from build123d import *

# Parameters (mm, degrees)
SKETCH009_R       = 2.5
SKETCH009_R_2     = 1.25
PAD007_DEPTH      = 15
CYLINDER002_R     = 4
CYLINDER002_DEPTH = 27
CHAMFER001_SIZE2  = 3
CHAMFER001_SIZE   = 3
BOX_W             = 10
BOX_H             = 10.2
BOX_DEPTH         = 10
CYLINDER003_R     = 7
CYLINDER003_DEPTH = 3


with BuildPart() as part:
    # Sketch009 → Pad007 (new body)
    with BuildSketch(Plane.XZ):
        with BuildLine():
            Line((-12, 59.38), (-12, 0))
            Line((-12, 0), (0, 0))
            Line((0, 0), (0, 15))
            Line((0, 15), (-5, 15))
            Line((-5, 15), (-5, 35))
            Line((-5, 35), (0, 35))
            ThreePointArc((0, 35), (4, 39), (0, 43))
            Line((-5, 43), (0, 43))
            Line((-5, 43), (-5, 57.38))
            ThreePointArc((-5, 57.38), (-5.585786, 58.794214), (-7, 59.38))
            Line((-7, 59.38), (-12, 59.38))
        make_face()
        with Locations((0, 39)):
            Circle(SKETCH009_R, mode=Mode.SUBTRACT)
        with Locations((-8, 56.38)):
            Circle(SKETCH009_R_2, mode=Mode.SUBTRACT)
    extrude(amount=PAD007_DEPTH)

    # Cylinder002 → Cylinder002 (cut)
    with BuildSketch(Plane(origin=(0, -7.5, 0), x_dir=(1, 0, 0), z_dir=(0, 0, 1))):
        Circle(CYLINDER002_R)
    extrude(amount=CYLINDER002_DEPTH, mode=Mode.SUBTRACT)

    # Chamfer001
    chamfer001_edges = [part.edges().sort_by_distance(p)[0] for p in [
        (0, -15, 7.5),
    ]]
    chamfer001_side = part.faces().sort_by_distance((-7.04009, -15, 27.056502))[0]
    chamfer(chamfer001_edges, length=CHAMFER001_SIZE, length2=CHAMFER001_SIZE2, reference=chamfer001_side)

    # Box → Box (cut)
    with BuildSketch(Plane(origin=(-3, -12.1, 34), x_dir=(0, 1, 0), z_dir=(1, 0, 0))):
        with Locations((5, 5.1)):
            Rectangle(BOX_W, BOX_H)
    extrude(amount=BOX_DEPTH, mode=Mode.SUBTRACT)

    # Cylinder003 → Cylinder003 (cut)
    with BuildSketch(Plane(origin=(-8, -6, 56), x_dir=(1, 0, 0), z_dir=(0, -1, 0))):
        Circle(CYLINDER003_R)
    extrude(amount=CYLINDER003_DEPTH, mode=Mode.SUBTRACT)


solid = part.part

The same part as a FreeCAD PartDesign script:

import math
import FreeCAD as App
import Part
import Sketcher
from FreeCAD import Vector


def edges_at(feature, points):
    """Names of the edges that pass closest to the given points."""
    edges = feature.Shape.Edges
    near = lambda p: min(range(len(edges)), key=lambda i: edges[i].distToShape(Part.Vertex(*p))[0])
    return sorted({f"Edge{near(p) + 1}" for p in points})


def add_polygon(sketch, points):
    """Adds a closed chain of lines whose ends are joined by coincident constraints."""
    first, n = sketch.GeometryCount, len(points)
    for a, b in zip(points, points[1:] + points[:1]):
        sketch.addGeometry(Part.LineSegment(App.Vector(*a, 0), App.Vector(*b, 0)), False)
    for i in range(n):
        sketch.addConstraint(Sketcher.Constraint("Coincident", first + i, 2, first + (i + 1) % n, 1))

doc = App.newDocument("Part")
body = doc.addObject("PartDesign::Body", "Body")

# Sketch on XZ plane
sketch1 = doc.addObject("Sketcher::SketchObject", "Sketch")
body.addObject(sketch1)
sketch1.AttachmentSupport = (doc.XZ_Plane, [""])
sketch1.MapMode = "FlatFace"
sketch1.addGeometry(Part.LineSegment(Vector(-12, 59.4, 0), Vector(-12, 0, 0)), False)
sketch1.addGeometry(Part.LineSegment(Vector(-12, 0, 0), Vector(0, 0, 0)), False)
sketch1.addGeometry(Part.LineSegment(Vector(0, 0, 0), Vector(0, 15, 0)), False)
sketch1.addGeometry(Part.LineSegment(Vector(0, 15, 0), Vector(-5, 15, 0)), False)
sketch1.addGeometry(Part.LineSegment(Vector(-5, 15, 0), Vector(-5, 35, 0)), False)
sketch1.addGeometry(Part.LineSegment(Vector(-5, 35, 0), Vector(0, 35, 0)), False)
sketch1.addGeometry(Part.ArcOfCircle(Part.Circle(Vector(0, 39, 0), Vector(0, 0, 1), 4), math.radians(-90), math.radians(90)), False)
sketch1.addGeometry(Part.LineSegment(Vector(0, 43, 0), Vector(-5, 43, 0)), False)
sketch1.addGeometry(Part.LineSegment(Vector(-5, 43, 0), Vector(-5, 57.4, 0)), False)
sketch1.addGeometry(Part.ArcOfCircle(Part.Circle(Vector(-7, 57.4, 0), Vector(0, 0, 1), 2), math.radians(0), math.radians(90)), False)
sketch1.addGeometry(Part.LineSegment(Vector(-7, 59.4, 0), Vector(-12, 59.4, 0)), False)
sketch1.addGeometry(Part.Circle(Vector(0, 39, 0), Vector(0, 0, 1), 2.5), False)
sketch1.addGeometry(Part.Circle(Vector(-8, 56.4, 0), Vector(0, 0, 1), 1.2), False)
sketch1.addConstraint(Sketcher.Constraint("Coincident", 0, 2, 1, 1))
sketch1.addConstraint(Sketcher.Constraint("Coincident", 1, 2, 2, 1))
sketch1.addConstraint(Sketcher.Constraint("Coincident", 2, 2, 3, 1))
sketch1.addConstraint(Sketcher.Constraint("Coincident", 3, 2, 4, 1))
sketch1.addConstraint(Sketcher.Constraint("Coincident", 4, 2, 5, 1))
sketch1.addConstraint(Sketcher.Constraint("Tangent", 5, 2, 6, 1))
sketch1.addConstraint(Sketcher.Constraint("Tangent", 6, 2, 7, 1))
sketch1.addConstraint(Sketcher.Constraint("Coincident", 7, 2, 8, 1))
sketch1.addConstraint(Sketcher.Constraint("Tangent", 8, 2, 9, 1))
sketch1.addConstraint(Sketcher.Constraint("Tangent", 9, 2, 10, 1))
sketch1.addConstraint(Sketcher.Constraint("Coincident", 10, 2, 0, 1))
sketch1.addConstraint(Sketcher.Constraint("Vertical", 0))
sketch1.addConstraint(Sketcher.Constraint("Horizontal", 1))
sketch1.addConstraint(Sketcher.Constraint("Vertical", 2))
sketch1.addConstraint(Sketcher.Constraint("Horizontal", 3))
sketch1.addConstraint(Sketcher.Constraint("Vertical", 4))
sketch1.addConstraint(Sketcher.Constraint("Horizontal", 5))
sketch1.addConstraint(Sketcher.Constraint("Horizontal", 7))
sketch1.addConstraint(Sketcher.Constraint("Vertical", 8))
sketch1.addConstraint(Sketcher.Constraint("Horizontal", 10))
sketch1.addConstraint(Sketcher.Constraint("Coincident", 1, 2, -1, 1))
sketch1.addConstraint(Sketcher.Constraint("Coincident", 11, 3, 6, 3))
sketch1.addConstraint(Sketcher.Constraint("PointOnObject", 6, 3, -2))
sketch1.addConstraint(Sketcher.Constraint("Vertical", 4, 2, 7, 2))
sketch1.addConstraint(Sketcher.Constraint("Equal", 7, 10))
sketch1.addConstraint(Sketcher.Constraint("Diameter", 11, 5.0))
sketch1.addConstraint(Sketcher.Constraint("Radius", 6, 4.0))
sketch1.addConstraint(Sketcher.Constraint("Radius", 9, 1.999999))
sketch1.addConstraint(Sketcher.Constraint("Diameter", 12, 2.5))
sketch1.addConstraint(Sketcher.Constraint("DistanceX", 1, 1, 1, 2, 12.0))
sketch1.addConstraint(Sketcher.Constraint("DistanceY", 2, 1, 2, 2, 15.0))
sketch1.addConstraint(Sketcher.Constraint("DistanceY", 4, 1, 4, 2, 20.0))
sketch1.addConstraint(Sketcher.Constraint("DistanceX", 12, 3, -1, 1, 8.0))
sketch1.addConstraint(Sketcher.Constraint("DistanceY", 12, 3, 9, 3, 1.000001))
sketch1.addConstraint(Sketcher.Constraint("DistanceY", 0, 2, 0, 1, 59.38))
pad1 = doc.addObject("PartDesign::Pad", "Pad")
body.addObject(pad1)
pad1.Profile = sketch1
pad1.Length = 15

# Sketch on XY plane
sketch2 = doc.addObject("Sketcher::SketchObject", "Sketch001")
body.addObject(sketch2)
sketch2.AttachmentSupport = (doc.XY_Plane, [""])
sketch2.MapMode = "FlatFace"
sketch2.addGeometry(Part.Circle(Vector(0, -7.5, 0), Vector(0, 0, 1), 4), False)
sketch2.addConstraint(Sketcher.Constraint("PointOnObject", 0, 3, -2))
sketch2.addConstraint(Sketcher.Constraint("Diameter", 0, 8.0))
sketch2.addConstraint(Sketcher.Constraint("DistanceY", 0, 3, -1, 1, 7.5))
pocket1 = doc.addObject("PartDesign::Pocket", "Pocket")
body.addObject(pocket1)
pocket1.Profile = sketch2
pocket1.Length = 27
pocket1.Reversed = True
doc.recompute()

chamfer = doc.addObject("PartDesign::Chamfer", "Chamfer")
body.addObject(chamfer)
chamfer.Base = (pocket1, edges_at(pocket1, [(0, -15, 7.5)]))
chamfer.ChamferType = "Two distances"
chamfer.Size = 3
chamfer.Size2 = 3

# Sketch on YZ plane
sketch3 = doc.addObject("Sketcher::SketchObject", "Sketch002")
body.addObject(sketch3)
sketch3.AttachmentSupport = (doc.YZ_Plane, [""])
sketch3.MapMode = "FlatFace"
sketch3.AttachmentOffset = App.Placement(Vector(0, 0, -3), App.Rotation())
add_polygon(sketch3, [(-12, 44), (-12, 34), (-2, 34), (-2, 44)])  # lines 0-3
sketch3.addConstraint(Sketcher.Constraint("Vertical", 0))
sketch3.addConstraint(Sketcher.Constraint("Horizontal", 1))
sketch3.addConstraint(Sketcher.Constraint("Vertical", 2))
sketch3.addConstraint(Sketcher.Constraint("Horizontal", 3))
sketch3.addConstraint(Sketcher.Constraint("DistanceX", 1, 1, 1, 2, 10.0))
sketch3.addConstraint(Sketcher.Constraint("DistanceY", 0, 2, 0, 1, 10.2))
sketch3.addConstraint(Sketcher.Constraint("DistanceY", -1, 1, 0, 2, 34.0))
sketch3.addConstraint(Sketcher.Constraint("DistanceX", 0, 2, -1, 1, 12.1))
pocket2 = doc.addObject("PartDesign::Pocket", "Pocket001")
body.addObject(pocket2)
pocket2.Profile = sketch3
pocket2.Length = 10
pocket2.Reversed = True

# Sketch on XZ plane
sketch4 = doc.addObject("Sketcher::SketchObject", "Sketch003")
body.addObject(sketch4)
sketch4.AttachmentSupport = (doc.XZ_Plane, [""])
sketch4.MapMode = "FlatFace"
sketch4.AttachmentOffset = App.Placement(Vector(0, 0, 6), App.Rotation())
sketch4.addGeometry(Part.Circle(Vector(-8, 56, 0), Vector(0, 0, 1), 7), False)
sketch4.addConstraint(Sketcher.Constraint("Diameter", 0, 14.0))
sketch4.addConstraint(Sketcher.Constraint("DistanceX", 0, 3, -1, 1, 8.0))
sketch4.addConstraint(Sketcher.Constraint("DistanceY", -1, 1, 0, 3, 56.0))
pocket3 = doc.addObject("PartDesign::Pocket", "Pocket002")
body.addObject(pocket3)
pocket3.Profile = sketch4
pocket3.Length = 3
pocket3.Reversed = True

doc.recompute()
